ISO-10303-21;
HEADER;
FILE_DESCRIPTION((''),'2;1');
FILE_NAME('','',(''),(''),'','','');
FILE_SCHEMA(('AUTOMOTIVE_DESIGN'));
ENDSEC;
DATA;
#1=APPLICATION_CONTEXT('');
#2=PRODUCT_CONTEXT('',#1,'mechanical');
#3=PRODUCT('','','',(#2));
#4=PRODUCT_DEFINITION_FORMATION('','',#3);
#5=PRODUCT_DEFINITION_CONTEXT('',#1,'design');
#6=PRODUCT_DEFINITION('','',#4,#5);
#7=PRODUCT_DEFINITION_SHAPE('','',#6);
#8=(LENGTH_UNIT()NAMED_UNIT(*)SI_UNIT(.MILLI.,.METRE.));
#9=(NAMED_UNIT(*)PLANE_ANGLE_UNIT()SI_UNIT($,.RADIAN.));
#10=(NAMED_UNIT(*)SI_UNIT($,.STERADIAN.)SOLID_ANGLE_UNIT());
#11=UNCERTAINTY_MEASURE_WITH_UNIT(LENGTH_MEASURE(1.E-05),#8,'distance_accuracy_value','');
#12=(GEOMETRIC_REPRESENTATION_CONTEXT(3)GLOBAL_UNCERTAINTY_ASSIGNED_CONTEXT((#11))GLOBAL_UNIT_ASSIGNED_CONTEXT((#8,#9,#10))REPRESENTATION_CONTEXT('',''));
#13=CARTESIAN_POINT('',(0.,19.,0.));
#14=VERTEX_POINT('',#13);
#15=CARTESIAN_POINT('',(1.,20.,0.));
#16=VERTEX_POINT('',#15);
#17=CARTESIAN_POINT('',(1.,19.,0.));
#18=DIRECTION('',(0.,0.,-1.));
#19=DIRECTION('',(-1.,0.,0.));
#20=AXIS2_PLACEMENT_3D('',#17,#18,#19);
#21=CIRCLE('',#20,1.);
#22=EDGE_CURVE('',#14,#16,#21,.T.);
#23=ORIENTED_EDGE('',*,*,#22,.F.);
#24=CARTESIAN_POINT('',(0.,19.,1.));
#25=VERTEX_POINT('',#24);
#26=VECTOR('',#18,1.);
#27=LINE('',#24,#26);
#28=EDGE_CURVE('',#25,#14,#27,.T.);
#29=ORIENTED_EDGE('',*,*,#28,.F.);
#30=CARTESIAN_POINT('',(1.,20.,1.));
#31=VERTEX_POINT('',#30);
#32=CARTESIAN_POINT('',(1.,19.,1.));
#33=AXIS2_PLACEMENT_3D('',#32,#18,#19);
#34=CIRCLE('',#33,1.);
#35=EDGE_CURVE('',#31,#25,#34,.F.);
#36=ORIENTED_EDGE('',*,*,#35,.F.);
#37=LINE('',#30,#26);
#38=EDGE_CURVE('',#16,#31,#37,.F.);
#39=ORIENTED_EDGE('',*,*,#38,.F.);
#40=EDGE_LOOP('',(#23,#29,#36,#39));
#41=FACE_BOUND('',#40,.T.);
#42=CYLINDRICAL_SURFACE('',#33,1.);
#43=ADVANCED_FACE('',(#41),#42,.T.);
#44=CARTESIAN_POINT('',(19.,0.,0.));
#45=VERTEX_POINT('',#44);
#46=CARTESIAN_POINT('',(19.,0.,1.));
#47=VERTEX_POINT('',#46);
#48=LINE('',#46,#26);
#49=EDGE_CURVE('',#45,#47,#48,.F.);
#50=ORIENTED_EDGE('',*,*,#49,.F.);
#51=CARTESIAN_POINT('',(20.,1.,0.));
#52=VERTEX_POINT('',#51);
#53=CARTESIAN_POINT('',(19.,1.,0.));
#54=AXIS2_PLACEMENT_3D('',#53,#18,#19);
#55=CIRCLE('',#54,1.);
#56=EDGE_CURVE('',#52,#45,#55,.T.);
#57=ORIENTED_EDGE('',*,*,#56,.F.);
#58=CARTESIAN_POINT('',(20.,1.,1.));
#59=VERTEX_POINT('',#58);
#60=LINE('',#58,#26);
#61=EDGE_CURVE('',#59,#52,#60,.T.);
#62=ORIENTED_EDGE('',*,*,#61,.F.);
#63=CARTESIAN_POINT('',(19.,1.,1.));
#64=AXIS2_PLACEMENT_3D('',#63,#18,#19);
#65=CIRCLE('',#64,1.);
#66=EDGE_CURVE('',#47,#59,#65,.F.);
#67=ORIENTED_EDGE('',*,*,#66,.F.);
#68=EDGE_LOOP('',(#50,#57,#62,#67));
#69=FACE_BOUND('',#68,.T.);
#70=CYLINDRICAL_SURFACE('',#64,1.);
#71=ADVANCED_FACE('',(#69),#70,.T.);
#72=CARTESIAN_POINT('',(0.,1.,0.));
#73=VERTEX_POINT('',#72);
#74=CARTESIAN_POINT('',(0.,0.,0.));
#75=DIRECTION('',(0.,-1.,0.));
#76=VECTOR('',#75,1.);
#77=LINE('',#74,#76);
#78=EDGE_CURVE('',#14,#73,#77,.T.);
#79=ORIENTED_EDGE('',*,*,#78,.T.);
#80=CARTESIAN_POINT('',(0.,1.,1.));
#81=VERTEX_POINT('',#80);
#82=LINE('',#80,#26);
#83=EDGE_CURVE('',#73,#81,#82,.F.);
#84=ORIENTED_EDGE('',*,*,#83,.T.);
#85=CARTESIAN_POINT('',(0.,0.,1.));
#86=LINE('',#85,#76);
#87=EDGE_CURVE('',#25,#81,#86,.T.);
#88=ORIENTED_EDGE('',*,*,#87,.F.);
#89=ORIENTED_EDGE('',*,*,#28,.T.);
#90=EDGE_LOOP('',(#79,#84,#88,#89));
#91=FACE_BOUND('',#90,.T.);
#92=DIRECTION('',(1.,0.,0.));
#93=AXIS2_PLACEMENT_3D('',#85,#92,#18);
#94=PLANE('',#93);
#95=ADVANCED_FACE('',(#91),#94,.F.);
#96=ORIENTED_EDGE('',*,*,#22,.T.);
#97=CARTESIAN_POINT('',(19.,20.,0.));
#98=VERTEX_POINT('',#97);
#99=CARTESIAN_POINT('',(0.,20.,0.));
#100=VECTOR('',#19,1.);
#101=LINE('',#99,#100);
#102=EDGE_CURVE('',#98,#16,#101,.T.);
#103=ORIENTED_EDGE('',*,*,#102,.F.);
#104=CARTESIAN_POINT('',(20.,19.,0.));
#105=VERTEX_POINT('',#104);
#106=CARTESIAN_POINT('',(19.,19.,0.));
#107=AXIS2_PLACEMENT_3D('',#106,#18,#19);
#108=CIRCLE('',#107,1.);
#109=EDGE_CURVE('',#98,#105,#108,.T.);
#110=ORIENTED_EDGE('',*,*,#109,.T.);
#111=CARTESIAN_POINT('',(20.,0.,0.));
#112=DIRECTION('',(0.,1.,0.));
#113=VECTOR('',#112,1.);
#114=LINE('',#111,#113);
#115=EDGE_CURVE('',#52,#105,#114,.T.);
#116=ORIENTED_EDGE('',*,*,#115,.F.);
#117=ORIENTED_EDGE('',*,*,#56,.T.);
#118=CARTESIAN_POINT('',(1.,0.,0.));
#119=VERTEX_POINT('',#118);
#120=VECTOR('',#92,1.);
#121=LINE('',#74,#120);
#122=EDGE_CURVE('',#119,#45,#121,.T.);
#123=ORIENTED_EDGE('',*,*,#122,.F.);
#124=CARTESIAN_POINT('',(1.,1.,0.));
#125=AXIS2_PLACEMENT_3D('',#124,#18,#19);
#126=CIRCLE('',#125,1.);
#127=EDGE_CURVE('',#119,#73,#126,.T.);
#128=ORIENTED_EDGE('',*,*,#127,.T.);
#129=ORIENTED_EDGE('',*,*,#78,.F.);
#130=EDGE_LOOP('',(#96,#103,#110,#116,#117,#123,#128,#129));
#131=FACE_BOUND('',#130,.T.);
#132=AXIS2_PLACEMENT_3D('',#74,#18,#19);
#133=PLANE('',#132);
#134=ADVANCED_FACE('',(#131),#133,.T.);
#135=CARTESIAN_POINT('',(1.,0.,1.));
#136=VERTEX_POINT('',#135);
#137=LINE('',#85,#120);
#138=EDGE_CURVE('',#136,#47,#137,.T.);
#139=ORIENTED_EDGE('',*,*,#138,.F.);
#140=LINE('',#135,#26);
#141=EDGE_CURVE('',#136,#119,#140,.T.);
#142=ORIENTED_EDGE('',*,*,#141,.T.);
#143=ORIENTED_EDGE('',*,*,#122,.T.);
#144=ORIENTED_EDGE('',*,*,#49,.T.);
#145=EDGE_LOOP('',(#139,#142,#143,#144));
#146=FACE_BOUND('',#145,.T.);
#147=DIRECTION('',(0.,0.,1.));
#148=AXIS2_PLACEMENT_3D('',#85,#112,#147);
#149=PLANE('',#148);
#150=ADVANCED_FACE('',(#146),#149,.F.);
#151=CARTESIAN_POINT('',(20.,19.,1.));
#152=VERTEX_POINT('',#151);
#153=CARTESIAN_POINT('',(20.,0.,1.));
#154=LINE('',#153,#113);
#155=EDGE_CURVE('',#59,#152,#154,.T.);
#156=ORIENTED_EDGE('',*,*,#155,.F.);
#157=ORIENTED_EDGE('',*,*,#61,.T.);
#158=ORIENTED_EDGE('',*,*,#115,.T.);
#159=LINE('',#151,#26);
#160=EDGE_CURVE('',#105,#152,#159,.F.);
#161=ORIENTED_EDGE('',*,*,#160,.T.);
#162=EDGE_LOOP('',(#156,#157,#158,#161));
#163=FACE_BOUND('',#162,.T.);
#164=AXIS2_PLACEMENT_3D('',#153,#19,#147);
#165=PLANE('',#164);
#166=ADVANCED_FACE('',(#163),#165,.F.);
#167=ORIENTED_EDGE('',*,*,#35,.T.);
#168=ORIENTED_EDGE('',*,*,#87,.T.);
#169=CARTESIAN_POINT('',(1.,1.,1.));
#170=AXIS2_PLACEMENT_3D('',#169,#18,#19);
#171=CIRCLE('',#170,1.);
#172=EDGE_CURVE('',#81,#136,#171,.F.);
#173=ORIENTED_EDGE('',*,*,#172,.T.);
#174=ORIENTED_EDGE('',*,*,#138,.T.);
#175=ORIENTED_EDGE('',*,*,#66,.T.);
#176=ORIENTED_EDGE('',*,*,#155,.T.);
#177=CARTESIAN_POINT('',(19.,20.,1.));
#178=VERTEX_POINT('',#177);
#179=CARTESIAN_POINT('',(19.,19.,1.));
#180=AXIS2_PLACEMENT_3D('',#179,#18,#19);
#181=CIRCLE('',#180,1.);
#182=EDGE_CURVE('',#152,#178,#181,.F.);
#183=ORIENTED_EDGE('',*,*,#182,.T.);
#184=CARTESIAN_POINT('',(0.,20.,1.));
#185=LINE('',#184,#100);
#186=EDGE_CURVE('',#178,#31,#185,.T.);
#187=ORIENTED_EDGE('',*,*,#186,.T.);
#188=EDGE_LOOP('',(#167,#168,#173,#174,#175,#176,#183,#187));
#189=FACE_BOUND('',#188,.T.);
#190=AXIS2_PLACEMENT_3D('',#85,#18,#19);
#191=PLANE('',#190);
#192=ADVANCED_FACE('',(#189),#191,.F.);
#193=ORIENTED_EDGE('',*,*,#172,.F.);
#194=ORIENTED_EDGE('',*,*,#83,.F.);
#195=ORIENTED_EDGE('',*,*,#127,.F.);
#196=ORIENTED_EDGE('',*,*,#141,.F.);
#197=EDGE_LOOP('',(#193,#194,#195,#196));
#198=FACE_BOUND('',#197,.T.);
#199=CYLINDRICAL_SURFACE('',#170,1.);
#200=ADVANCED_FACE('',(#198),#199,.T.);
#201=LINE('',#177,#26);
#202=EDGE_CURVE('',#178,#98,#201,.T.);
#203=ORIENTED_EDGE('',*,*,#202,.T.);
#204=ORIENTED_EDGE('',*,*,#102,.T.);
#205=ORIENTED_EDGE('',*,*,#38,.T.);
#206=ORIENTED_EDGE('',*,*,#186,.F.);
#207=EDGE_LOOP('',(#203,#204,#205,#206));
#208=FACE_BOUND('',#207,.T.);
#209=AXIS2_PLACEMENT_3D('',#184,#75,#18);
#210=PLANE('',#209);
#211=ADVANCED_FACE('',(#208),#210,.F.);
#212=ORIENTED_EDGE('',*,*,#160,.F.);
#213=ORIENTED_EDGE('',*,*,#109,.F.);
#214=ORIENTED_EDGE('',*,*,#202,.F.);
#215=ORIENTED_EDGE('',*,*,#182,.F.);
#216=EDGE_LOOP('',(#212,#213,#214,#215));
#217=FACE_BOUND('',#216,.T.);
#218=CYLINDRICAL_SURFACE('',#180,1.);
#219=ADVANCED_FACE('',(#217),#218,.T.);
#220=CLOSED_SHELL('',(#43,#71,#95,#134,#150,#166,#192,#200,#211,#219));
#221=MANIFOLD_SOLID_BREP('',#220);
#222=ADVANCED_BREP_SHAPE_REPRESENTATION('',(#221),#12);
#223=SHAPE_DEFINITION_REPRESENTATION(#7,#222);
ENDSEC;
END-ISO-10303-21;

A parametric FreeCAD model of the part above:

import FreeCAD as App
import Part
import Sketcher


def edges_at(feature, points):
    """Names of the edges that pass closest to the given points."""
    edges = feature.Shape.Edges
    near = lambda p: min(range(len(edges)), key=lambda i: edges[i].distToShape(Part.Vertex(*p))[0])
    return sorted({f"Edge{near(p) + 1}" for p in points})

doc = App.newDocument("Part")
body = doc.addObject("PartDesign::Body", "Body")

# Sketch on XY plane
sketch1 = body.newObject("Sketcher::SketchObject", "Sketch")
sketch1.AttachmentSupport = (doc.getObject("XY_Plane"), [""])
sketch1.MapMode = "FlatFace"
sketch1.addGeometry(Part.LineSegment(App.Vector(0, 20, 0), App.Vector(0, 0, 0)), False)
sketch1.addGeometry(Part.LineSegment(App.Vector(0, 0, 0), App.Vector(20, 0, 0)), False)
sketch1.addGeometry(Part.LineSegment(App.Vector(20, 0, 0), App.Vector(20, 20, 0)), False)
sketch1.addGeometry(Part.LineSegment(App.Vector(20, 20, 0), App.Vector(0, 20, 0)), False)
sketch1.addConstraint(Sketcher.Constraint("Coincident", 0, 2, 1, 1))
sketch1.addConstraint(Sketcher.Constraint("Coincident", 1, 2, 2, 1))
sketch1.addConstraint(Sketcher.Constraint("Coincident", 2, 2, 3, 1))
sketch1.addConstraint(Sketcher.Constraint("Coincident", 3, 2, 0, 1))
sketch1.addConstraint(Sketcher.Constraint("Vertical", 0))
sketch1.addConstraint(Sketcher.Constraint("Horizontal", 1))
sketch1.addConstraint(Sketcher.Constraint("Vertical", 2))
sketch1.addConstraint(Sketcher.Constraint("Horizontal", 3))
sketch1.addConstraint(Sketcher.Constraint("Coincident", 0, 2, -1, 1))
sketch1.addConstraint(Sketcher.Constraint("Equal", 3, 0))
sketch1.addConstraint(Sketcher.Constraint("DistanceX", 1, 1, 1, 2, 20.0))
pad1 = body.newObject("PartDesign::Pad", "Pad")
pad1.Profile = sketch1
pad1.Length = 1
doc.recompute()

fillet = body.newObject("PartDesign::Fillet", "Fillet")
fillet.Base = (pad1, edges_at(pad1, [
    (0, 20, 0.5),
    (20, 20, 0.5),
    (20, 0, 0.5),
    (0, 0, 0.5),
]))
fillet.Radius = 1

doc.recompute()
